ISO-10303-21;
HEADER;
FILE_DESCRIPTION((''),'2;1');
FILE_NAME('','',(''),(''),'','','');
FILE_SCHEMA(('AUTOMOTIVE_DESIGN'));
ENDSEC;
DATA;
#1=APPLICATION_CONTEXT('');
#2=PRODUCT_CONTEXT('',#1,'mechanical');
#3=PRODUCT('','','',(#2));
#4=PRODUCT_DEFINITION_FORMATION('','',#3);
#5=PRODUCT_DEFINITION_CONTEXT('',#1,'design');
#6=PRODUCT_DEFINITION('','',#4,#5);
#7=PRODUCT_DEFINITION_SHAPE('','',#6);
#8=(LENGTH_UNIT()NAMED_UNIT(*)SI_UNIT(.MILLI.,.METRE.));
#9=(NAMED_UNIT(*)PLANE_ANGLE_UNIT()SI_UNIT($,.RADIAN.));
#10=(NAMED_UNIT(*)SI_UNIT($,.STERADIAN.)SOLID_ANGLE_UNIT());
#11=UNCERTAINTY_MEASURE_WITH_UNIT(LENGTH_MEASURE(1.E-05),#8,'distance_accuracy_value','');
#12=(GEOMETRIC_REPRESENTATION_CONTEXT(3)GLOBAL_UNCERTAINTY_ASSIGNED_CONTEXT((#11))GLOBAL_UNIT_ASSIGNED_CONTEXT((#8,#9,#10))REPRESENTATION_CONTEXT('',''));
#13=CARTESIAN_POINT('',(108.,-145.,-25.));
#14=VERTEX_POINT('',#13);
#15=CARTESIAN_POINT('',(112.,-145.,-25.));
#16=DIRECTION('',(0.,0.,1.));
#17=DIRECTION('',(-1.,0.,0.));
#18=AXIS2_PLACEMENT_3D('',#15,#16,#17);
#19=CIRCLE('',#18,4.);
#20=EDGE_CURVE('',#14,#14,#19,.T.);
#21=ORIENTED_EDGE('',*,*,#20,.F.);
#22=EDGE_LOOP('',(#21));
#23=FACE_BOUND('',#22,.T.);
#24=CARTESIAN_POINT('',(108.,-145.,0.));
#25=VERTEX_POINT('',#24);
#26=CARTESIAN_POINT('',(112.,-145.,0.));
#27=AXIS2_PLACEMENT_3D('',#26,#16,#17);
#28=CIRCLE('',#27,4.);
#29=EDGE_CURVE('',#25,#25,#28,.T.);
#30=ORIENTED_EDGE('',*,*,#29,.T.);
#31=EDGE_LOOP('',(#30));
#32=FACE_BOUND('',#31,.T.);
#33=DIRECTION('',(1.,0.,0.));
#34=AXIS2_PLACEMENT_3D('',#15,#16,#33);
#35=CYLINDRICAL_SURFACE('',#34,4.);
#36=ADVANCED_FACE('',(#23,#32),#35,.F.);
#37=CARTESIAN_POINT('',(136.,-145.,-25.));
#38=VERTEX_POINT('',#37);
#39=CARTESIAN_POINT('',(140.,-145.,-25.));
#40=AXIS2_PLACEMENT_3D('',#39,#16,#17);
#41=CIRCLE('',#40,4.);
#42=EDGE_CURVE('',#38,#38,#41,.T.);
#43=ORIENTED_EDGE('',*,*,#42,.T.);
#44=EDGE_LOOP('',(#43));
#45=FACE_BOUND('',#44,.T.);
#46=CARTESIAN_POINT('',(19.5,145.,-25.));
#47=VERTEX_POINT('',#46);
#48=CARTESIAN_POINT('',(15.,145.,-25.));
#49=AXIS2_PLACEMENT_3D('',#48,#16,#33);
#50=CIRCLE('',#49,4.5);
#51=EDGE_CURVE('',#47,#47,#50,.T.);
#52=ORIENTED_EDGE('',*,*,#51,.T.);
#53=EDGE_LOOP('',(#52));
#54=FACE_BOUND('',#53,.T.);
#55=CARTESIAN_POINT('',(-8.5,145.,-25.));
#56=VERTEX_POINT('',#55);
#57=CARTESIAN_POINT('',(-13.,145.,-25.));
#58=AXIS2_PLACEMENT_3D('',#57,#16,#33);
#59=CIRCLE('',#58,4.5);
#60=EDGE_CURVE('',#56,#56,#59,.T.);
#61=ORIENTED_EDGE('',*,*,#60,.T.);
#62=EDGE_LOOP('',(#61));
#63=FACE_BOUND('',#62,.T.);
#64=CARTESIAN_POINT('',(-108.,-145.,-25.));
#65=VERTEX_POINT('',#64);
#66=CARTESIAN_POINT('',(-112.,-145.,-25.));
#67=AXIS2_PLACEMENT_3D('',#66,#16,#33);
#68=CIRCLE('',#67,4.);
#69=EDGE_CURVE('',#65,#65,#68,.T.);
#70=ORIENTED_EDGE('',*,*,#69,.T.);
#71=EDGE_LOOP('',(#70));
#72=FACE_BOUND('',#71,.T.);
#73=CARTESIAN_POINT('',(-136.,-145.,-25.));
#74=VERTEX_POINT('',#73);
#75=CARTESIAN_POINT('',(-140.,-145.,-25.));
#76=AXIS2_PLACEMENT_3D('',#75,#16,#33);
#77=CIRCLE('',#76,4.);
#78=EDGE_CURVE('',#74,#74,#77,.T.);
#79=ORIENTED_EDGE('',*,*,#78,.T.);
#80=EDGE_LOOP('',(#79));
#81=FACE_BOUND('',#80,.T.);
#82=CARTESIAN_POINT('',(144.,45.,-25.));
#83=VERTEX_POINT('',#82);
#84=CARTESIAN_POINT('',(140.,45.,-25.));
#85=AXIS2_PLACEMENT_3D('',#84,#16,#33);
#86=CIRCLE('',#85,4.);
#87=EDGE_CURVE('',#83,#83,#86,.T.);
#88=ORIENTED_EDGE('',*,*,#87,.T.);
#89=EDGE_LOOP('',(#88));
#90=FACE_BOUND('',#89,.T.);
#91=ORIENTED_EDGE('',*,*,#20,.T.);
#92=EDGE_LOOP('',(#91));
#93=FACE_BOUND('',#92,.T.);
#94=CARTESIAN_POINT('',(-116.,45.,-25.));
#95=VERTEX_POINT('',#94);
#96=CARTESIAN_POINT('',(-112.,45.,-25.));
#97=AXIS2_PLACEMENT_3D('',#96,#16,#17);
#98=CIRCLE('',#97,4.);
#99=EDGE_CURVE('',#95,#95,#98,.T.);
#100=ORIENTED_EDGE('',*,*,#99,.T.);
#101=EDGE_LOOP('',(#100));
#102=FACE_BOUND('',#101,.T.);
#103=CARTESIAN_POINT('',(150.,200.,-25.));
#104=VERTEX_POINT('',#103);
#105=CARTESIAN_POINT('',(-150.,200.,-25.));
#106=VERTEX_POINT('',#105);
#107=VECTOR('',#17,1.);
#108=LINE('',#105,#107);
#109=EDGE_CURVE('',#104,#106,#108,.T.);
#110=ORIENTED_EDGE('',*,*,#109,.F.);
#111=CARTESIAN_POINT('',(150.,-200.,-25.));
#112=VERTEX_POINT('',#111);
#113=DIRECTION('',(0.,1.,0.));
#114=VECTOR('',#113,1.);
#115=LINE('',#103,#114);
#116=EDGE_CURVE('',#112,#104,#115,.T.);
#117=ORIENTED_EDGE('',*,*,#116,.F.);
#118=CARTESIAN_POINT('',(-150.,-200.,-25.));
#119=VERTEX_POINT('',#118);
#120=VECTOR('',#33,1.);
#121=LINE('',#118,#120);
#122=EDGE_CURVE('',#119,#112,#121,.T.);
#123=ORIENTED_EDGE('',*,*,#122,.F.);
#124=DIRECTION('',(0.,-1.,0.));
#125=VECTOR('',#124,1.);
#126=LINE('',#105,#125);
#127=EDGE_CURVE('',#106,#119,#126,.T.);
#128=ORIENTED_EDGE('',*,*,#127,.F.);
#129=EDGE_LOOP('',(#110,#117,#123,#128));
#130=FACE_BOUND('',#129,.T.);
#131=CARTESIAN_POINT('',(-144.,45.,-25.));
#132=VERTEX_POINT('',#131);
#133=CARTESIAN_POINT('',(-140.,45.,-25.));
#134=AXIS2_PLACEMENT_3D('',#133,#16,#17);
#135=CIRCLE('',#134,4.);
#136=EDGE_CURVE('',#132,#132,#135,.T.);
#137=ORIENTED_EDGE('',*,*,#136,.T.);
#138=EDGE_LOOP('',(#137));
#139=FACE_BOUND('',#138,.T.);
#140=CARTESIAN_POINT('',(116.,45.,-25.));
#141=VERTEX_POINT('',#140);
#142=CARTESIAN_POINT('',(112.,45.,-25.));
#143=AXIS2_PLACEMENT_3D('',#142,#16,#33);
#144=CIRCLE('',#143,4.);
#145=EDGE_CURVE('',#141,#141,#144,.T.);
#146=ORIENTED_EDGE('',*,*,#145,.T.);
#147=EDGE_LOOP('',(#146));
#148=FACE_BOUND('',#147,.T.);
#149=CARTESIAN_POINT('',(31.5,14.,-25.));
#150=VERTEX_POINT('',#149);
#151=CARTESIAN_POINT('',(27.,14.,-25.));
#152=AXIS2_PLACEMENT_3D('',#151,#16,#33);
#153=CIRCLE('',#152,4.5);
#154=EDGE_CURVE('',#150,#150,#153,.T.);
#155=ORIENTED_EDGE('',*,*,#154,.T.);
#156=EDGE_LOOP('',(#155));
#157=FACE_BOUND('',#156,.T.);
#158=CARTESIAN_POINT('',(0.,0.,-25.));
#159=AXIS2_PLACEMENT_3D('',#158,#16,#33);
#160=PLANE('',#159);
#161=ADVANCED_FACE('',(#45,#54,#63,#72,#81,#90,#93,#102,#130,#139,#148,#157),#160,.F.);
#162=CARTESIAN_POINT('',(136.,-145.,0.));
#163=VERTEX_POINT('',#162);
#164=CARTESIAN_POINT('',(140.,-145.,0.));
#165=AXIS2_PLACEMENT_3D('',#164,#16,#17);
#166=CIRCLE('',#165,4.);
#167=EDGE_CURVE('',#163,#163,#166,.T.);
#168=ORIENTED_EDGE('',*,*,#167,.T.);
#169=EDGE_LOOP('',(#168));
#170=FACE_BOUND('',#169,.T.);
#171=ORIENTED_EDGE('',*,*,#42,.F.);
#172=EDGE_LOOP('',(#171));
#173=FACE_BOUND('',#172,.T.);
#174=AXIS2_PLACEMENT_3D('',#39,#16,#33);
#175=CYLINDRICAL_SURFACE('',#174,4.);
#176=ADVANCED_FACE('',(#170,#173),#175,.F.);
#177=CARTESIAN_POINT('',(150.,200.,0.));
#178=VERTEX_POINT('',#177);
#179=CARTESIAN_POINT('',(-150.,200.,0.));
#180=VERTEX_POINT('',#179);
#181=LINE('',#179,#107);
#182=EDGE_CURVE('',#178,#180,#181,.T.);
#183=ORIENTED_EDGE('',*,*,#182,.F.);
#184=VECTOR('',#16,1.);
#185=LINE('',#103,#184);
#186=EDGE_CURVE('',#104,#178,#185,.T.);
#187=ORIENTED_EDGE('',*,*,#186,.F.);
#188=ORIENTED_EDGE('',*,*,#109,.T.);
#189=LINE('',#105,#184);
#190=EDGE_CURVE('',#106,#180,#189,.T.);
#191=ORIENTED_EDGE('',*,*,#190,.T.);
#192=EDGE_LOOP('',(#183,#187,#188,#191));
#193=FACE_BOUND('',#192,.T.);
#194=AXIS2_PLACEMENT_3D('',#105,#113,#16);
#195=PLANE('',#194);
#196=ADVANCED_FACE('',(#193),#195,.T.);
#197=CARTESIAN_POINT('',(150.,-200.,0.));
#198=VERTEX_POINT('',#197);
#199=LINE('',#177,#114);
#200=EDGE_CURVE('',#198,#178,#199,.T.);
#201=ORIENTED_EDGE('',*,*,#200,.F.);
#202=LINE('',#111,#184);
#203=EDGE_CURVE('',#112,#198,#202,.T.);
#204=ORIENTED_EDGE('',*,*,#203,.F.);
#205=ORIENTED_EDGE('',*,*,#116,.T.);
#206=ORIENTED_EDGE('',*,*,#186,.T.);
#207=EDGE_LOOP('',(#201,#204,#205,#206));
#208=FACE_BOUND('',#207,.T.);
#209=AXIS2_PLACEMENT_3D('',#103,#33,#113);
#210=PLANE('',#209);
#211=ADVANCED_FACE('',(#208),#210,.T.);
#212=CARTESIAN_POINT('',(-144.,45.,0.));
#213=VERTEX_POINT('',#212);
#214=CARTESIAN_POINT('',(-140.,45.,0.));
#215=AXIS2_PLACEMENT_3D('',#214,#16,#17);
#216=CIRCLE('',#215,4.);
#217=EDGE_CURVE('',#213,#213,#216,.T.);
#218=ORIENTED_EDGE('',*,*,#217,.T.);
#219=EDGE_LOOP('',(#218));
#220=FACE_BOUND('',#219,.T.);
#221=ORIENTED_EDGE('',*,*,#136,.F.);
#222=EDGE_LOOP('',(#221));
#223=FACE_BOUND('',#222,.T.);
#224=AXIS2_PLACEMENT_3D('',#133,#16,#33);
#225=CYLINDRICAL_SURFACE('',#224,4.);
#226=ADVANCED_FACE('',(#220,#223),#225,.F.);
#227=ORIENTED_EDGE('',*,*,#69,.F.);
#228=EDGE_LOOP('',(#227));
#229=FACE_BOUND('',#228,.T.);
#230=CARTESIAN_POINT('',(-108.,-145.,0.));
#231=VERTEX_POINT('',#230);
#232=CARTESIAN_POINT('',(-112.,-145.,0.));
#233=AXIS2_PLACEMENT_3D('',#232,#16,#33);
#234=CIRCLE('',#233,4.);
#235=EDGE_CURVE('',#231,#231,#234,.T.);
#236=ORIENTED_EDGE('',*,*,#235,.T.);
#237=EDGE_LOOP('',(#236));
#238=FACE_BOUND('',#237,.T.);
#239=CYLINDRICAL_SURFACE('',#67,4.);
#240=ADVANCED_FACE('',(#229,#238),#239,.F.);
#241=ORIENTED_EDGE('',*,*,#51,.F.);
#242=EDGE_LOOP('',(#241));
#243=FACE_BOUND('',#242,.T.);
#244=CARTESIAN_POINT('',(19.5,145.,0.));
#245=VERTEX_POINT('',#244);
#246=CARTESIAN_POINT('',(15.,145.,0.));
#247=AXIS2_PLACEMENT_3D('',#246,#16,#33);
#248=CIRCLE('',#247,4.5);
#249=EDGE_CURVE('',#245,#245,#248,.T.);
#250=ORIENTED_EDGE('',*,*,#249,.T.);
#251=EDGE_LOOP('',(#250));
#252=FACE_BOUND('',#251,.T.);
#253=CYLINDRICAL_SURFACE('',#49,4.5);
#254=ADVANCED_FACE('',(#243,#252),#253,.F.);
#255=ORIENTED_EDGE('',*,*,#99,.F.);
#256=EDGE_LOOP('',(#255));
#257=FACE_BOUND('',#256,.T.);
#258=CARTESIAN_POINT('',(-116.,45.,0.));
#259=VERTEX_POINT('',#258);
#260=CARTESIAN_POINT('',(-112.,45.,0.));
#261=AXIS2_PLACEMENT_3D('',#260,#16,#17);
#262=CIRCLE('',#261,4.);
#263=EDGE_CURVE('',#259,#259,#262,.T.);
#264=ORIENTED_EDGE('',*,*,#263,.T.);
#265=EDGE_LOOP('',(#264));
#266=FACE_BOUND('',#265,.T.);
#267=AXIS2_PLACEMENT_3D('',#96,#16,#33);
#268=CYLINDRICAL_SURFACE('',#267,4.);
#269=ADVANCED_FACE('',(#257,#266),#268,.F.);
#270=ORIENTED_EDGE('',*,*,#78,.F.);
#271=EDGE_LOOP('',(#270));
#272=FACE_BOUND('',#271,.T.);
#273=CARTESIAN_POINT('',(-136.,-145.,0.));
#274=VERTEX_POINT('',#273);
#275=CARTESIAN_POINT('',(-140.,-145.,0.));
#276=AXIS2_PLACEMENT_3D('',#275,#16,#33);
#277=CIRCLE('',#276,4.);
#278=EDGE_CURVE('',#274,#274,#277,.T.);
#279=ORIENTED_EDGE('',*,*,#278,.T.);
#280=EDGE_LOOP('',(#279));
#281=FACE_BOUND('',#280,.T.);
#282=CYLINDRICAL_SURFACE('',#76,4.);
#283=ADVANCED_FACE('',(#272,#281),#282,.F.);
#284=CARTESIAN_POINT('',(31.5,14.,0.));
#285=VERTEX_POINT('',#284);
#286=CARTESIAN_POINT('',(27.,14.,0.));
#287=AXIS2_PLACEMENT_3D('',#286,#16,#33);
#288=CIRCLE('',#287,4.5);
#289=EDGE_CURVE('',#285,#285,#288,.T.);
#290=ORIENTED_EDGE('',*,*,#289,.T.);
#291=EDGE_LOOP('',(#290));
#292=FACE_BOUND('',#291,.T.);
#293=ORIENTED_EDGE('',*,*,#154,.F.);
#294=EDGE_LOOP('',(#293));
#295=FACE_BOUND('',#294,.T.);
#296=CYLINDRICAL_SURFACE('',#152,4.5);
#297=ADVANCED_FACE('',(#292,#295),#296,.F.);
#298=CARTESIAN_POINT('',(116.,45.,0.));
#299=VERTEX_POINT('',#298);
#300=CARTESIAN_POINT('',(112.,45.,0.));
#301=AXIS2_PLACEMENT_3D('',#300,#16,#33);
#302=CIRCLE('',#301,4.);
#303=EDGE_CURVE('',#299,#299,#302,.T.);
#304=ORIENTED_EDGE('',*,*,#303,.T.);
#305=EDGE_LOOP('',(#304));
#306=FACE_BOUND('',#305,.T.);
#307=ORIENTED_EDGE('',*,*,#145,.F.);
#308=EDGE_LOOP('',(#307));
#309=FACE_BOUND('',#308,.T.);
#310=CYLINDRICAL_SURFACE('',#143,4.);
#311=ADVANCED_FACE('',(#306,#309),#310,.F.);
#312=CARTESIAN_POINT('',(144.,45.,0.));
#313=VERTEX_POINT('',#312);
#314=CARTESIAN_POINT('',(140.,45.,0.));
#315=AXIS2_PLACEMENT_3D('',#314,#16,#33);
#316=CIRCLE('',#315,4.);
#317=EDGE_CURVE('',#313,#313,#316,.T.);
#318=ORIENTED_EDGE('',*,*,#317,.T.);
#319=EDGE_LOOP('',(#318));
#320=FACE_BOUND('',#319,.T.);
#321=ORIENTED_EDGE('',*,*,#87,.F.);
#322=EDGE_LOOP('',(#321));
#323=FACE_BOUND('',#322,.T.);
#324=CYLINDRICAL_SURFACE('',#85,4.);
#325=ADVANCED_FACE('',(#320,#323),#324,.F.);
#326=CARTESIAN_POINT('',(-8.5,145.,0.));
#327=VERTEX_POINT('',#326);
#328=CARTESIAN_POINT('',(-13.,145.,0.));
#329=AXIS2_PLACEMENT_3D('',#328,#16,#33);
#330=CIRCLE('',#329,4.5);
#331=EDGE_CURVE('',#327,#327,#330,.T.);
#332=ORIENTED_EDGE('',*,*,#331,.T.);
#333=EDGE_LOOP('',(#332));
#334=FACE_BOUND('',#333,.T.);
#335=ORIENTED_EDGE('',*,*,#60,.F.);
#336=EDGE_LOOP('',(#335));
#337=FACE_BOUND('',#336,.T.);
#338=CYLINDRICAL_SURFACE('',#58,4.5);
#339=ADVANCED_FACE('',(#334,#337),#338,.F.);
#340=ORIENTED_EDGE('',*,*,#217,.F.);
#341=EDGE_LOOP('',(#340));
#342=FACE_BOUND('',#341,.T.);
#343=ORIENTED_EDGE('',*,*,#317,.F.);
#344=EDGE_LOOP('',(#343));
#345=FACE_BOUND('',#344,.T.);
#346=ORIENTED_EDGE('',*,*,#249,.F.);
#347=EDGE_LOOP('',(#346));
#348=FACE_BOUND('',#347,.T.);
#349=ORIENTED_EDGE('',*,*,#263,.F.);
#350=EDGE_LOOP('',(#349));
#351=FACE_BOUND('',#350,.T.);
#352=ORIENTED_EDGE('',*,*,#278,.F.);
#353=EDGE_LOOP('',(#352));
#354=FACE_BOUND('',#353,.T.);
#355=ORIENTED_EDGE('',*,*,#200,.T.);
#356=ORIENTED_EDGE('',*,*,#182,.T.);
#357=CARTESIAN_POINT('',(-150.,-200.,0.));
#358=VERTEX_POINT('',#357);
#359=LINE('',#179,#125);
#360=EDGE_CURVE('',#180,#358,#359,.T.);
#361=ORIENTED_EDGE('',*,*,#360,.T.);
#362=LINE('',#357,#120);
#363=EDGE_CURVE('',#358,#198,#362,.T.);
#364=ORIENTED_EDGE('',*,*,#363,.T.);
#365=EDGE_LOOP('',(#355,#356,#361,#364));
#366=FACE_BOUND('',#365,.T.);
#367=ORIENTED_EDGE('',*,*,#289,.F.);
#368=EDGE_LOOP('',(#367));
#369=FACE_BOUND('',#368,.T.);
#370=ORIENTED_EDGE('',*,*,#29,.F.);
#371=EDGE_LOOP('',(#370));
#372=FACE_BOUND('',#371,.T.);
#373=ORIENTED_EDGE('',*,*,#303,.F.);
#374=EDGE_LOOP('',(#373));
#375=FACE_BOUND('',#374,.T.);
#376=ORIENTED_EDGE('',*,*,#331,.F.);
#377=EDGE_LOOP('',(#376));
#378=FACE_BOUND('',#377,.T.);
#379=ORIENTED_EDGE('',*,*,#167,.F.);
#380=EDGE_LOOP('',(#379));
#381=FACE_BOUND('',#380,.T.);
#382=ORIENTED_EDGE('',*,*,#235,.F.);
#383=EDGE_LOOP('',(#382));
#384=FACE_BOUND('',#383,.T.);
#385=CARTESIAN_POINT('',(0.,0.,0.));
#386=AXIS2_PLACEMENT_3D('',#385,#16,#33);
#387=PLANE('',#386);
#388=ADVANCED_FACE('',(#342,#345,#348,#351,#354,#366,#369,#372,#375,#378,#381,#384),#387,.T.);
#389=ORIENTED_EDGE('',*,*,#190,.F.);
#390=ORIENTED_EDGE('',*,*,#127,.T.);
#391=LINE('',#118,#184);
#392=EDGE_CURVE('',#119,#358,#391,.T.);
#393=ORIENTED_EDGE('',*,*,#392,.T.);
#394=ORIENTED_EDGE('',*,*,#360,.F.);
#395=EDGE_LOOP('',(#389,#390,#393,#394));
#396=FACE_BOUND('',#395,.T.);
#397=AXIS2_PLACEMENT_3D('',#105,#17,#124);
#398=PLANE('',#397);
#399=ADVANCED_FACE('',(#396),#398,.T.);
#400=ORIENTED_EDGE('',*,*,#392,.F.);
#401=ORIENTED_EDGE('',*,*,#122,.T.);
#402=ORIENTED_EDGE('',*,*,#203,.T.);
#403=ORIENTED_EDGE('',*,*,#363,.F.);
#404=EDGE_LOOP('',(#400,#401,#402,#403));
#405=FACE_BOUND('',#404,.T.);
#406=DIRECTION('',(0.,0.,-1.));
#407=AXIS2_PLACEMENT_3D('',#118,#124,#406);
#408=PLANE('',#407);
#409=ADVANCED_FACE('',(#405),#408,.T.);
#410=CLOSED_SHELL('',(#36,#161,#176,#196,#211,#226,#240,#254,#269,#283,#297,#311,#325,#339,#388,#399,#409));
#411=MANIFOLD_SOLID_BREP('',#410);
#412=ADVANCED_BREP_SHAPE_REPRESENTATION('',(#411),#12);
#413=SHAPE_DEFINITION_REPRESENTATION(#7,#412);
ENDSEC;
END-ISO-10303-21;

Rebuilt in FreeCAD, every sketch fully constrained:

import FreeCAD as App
import Part
import Sketcher
Q = App.Units.Quantity


def add_polygon(sketch, points):
    """Adds a closed chain of lines whose ends are joined by coincident constraints."""
    first, n = sketch.GeometryCount, len(points)
    for a, b in zip(points, points[1:] + points[:1]):
        sketch.addGeometry(Part.LineSegment(App.Vector(*a, 0), App.Vector(*b, 0)), False)
    for i in range(n):
        sketch.addConstraint(Sketcher.Constraint("Coincident", first + i, 2, first + (i + 1) % n, 1))

doc = App.newDocument("Part")
body = doc.addObject("PartDesign::Body", "Body")

# Sketch on XY plane
sketch1 = doc.addObject("Sketcher::SketchObject", "Sketch")
body.addObject(sketch1)
sketch1.AttachmentSupport = (doc.XY_Plane, [""])
sketch1.MapMode = "FlatFace"
add_polygon(sketch1, [(-150, 200), (-150, -200), (150, -200), (150, 200)])  # lines 0-3
sketch1.addGeometry(Part.Circle(App.Vector(-140, -145, 0), App.Vector(0, 0, 1), 4), False)  # 4
sketch1.addGeometry(Part.Circle(App.Vector(-112, -145, 0), App.Vector(0, 0, 1), 4), False)  # 5
sketch1.addGeometry(Part.Circle(App.Vector(112, -145, 0), App.Vector(0, 0, 1), 4), False)  # 6
sketch1.addGeometry(Part.Circle(App.Vector(140, -145, 0), App.Vector(0, 0, 1), 4), False)  # 7
sketch1.addGeometry(Part.Circle(App.Vector(-140, 45, 0), App.Vector(0, 0, 1), 4), False)  # 8
sketch1.addGeometry(Part.Circle(App.Vector(-112, 45, 0), App.Vector(0, 0, 1), 4), False)  # 9
sketch1.addGeometry(Part.Circle(App.Vector(-13, 145, 0), App.Vector(0, 0, 1), 4.5), False)  # 10
sketch1.addGeometry(Part.Circle(App.Vector(27, 14, 0), App.Vector(0, 0, 1), 4.5), False)  # 11
sketch1.addGeometry(Part.Circle(App.Vector(112, 45, 0), App.Vector(0, 0, 1), 4), False)  # 12
sketch1.addGeometry(Part.Circle(App.Vector(140, 45, 0), App.Vector(0, 0, 1), 4), False)  # 13
sketch1.addGeometry(Part.Circle(App.Vector(15, 145, 0), App.Vector(0, 0, 1), 4.5), False)  # 14
sketch1.addConstraint([
    Sketcher.Constraint("Vertical", 0),
    Sketcher.Constraint("Horizontal", 1),
    Sketcher.Constraint("Vertical", 2),
    Sketcher.Constraint("Horizontal", 3),
    Sketcher.Constraint("Equal", 4, 5),
    Sketcher.Constraint("Equal", 5, 6),
    Sketcher.Constraint("Equal", 6, 7),
    Sketcher.Constraint("Equal", 7, 8),
    Sketcher.Constraint("Equal", 8, 9),
    Sketcher.Constraint("Equal", 10, 11),
    Sketcher.Constraint("Equal", 9, 12),
    Sketcher.Constraint("Equal", 12, 13),
    Sketcher.Constraint("Equal", 11, 14),
    Sketcher.Constraint("Symmetric", 0, 2, 2, 2, -1, 1),
    Sketcher.Constraint("Symmetric", 5, 3, 6, 3, -2),
    Sketcher.Constraint("Symmetric", 4, 3, 7, 3, -2),
    Sketcher.Constraint("Symmetric", 9, 3, 12, 3, -2),
    Sketcher.Constraint("Symmetric", 8, 3, 13, 3, -2),
    Sketcher.Constraint("Horizontal", 4, 3, 5, 3),
    Sketcher.Constraint("Horizontal", 8, 3, 9, 3),
    Sketcher.Constraint("Horizontal", 10, 3, 14, 3),
    Sketcher.Constraint("Vertical", 4, 3, 8, 3),
    Sketcher.Constraint("Vertical", 5, 3, 9, 3),
    Sketcher.Constraint("Diameter", 4, Q("8 mm")),
    Sketcher.Constraint("Diameter", 10, Q("9 mm")),
    Sketcher.Constraint("DistanceX", 1, 1, 1, 2, Q("300 mm")),
    Sketcher.Constraint("DistanceY", 0, 2, 0, 1, Q("400 mm")),
    Sketcher.Constraint("DistanceX", 4, 3, -1, 1, Q("140 mm")),
    Sketcher.Constraint("DistanceY", 4, 3, -1, 1, Q("145 mm")),
    Sketcher.Constraint("DistanceX", 5, 3, -1, 1, Q("112 mm")),
    Sketcher.Constraint("DistanceY", -1, 1, 8, 3, Q("45 mm")),
    Sketcher.Constraint("DistanceX", 10, 3, -1, 1, Q("13 mm")),
    Sketcher.Constraint("DistanceY", -1, 1, 10, 3, Q("145 mm")),
    Sketcher.Constraint("DistanceX", -1, 1, 11, 3, Q("27 mm")),
    Sketcher.Constraint("DistanceY", -1, 1, 11, 3, Q("14 mm")),
    Sketcher.Constraint("DistanceX", -1, 1, 14, 3, Q("15 mm")),
])
pad1 = doc.addObject("PartDesign::Pad", "Pad")
body.addObject(pad1)
pad1.Profile = sketch1
pad1.Length = 25
pad1.Reversed = True

doc.recompute()
